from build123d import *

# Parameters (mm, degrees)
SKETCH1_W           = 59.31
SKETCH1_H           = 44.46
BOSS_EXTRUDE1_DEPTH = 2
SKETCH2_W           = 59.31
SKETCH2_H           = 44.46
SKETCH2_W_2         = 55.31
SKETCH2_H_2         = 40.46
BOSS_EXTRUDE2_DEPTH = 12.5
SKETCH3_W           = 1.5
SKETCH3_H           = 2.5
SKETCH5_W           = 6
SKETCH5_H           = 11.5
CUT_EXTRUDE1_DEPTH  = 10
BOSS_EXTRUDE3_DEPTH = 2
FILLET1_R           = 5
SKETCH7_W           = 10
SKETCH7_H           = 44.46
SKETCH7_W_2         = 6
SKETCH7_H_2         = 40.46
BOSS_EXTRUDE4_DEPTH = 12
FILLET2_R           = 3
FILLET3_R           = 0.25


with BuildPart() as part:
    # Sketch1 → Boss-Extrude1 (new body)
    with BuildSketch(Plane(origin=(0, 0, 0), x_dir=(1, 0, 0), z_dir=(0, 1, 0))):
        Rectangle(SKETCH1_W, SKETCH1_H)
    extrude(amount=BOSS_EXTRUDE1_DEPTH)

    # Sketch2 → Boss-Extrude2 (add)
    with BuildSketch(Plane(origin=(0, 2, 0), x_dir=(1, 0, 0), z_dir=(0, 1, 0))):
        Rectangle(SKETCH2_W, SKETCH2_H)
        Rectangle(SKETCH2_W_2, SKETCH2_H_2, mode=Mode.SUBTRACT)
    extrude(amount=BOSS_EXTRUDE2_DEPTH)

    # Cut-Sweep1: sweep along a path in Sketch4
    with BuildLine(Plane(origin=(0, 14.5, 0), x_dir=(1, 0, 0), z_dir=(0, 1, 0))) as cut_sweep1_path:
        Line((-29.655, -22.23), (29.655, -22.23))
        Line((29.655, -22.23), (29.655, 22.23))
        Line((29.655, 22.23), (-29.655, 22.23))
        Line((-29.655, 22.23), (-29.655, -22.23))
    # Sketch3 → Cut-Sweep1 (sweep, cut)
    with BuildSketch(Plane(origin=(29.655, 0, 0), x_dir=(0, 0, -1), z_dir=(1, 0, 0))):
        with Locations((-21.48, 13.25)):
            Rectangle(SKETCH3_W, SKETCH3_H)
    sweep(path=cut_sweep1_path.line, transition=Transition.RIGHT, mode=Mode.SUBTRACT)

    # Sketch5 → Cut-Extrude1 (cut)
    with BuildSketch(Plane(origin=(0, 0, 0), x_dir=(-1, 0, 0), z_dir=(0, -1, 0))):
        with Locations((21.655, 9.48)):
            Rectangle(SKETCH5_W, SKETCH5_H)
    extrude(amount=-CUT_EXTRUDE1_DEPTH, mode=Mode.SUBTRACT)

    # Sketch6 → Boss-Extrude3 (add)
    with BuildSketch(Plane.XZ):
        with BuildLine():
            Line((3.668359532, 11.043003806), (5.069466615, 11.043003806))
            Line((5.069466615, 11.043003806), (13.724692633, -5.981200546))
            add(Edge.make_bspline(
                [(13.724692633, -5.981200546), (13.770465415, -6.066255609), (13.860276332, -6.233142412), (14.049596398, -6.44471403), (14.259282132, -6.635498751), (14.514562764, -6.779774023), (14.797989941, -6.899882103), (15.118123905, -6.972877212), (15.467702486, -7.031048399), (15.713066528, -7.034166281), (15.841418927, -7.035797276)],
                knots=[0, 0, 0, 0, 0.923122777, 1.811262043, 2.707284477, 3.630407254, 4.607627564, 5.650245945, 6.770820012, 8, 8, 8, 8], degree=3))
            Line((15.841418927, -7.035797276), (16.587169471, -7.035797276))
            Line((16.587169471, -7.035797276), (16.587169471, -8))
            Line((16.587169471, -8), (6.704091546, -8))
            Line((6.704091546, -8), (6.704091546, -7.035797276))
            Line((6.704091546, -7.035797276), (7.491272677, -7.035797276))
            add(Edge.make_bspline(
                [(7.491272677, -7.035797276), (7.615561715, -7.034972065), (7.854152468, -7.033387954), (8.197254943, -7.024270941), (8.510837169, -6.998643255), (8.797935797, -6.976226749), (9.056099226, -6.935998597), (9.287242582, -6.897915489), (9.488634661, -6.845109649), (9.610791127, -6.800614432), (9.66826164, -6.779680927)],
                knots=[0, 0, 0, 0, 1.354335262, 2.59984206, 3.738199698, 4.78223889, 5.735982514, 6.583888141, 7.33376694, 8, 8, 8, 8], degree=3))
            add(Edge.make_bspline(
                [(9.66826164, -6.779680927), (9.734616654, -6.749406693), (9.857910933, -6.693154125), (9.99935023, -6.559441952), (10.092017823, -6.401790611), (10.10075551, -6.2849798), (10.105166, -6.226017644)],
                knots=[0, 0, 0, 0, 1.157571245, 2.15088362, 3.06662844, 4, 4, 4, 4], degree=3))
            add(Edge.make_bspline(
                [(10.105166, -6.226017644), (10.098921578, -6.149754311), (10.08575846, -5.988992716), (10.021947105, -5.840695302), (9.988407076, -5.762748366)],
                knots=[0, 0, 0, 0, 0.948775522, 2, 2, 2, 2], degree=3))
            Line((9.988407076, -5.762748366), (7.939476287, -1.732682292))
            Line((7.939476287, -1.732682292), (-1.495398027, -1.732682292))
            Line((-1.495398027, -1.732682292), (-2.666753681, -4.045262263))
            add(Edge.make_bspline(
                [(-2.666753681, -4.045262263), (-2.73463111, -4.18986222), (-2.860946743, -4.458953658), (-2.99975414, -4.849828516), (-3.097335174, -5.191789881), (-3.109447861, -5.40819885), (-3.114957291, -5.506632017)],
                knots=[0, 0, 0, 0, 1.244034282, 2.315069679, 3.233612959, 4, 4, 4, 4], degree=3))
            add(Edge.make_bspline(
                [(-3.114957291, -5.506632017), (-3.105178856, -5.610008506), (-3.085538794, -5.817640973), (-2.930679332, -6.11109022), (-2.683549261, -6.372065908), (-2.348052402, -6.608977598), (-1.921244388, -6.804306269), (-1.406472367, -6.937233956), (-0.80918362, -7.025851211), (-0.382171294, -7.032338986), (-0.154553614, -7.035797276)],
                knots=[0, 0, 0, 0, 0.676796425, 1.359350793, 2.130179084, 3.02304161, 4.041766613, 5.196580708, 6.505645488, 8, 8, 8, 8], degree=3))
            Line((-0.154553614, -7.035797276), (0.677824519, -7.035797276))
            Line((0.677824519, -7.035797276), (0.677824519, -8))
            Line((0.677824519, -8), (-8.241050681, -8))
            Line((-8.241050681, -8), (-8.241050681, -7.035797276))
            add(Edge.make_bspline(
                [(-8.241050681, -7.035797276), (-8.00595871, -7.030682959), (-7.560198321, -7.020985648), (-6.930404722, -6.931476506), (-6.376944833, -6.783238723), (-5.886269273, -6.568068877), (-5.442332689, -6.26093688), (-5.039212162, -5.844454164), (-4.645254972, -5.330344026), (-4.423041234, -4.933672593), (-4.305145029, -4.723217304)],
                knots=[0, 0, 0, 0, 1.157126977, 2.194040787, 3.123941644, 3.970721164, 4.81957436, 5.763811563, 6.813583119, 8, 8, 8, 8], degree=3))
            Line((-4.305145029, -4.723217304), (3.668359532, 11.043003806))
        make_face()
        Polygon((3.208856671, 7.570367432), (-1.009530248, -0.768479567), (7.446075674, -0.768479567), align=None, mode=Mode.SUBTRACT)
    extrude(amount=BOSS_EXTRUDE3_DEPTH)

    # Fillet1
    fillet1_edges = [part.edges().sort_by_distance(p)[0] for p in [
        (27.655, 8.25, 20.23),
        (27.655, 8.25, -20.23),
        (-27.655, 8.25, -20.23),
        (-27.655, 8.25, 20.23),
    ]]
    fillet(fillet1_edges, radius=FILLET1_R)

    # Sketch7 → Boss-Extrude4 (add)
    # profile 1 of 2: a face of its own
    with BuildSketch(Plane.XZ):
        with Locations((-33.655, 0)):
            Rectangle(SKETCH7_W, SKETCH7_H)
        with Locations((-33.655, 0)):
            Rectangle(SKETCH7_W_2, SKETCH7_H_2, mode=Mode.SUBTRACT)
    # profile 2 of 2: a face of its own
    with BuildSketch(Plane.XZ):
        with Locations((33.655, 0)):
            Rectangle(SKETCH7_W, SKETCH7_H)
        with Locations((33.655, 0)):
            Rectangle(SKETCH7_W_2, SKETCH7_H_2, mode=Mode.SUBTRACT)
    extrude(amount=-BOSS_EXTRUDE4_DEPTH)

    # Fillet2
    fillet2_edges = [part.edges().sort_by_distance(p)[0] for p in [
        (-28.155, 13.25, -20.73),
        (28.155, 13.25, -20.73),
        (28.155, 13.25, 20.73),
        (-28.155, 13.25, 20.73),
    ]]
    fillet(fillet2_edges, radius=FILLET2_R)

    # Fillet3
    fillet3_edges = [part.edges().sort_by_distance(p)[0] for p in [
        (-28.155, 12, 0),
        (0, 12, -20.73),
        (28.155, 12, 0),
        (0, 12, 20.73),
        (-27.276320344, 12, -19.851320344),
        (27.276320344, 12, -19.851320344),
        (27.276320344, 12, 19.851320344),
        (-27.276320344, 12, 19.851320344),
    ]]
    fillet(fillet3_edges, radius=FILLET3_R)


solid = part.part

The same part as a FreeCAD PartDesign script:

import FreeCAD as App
import Part
import Sketcher
from FreeCAD import Vector
Q = App.Units.Quantity


def edges_at(feature, points):
    """Names of the edges that pass closest to the given points."""
    edges = feature.Shape.Edges
    near = lambda p: min(range(len(edges)), key=lambda i: edges[i].distToShape(Part.Vertex(*p))[0])
    return sorted({f"Edge{near(p) + 1}" for p in points})


def add_polygon(sketch, points):
    """Adds a closed chain of lines whose ends are joined by coincident constraints."""
    first, n = sketch.GeometryCount, len(points)
    for a, b in zip(points, points[1:] + points[:1]):
        sketch.addGeometry(Part.LineSegment(App.Vector(*a, 0), App.Vector(*b, 0)), False)
    for i in range(n):
        sketch.addConstraint(Sketcher.Constraint("Coincident", first + i, 2, first + (i + 1) % n, 1))

doc = App.newDocument("Part")
body = doc.addObject("PartDesign::Body", "Body")

# Sketch on XZ plane
sketch1 = body.newObject("Sketcher::SketchObject", "Sketch")
sketch1.AttachmentSupport = (doc.getObject("XZ_Plane"), [""])
sketch1.MapMode = "FlatFace"
add_polygon(sketch1, [(-30, -22), (-30, 22), (30, 22), (30, -22)])  # lines 0-3
sketch1.addConstraint(Sketcher.Constraint("Vertical", 0))
sketch1.addConstraint(Sketcher.Constraint("Horizontal", 1))
sketch1.addConstraint(Sketcher.Constraint("Vertical", 2))
sketch1.addConstraint(Sketcher.Constraint("Horizontal", 3))
sketch1.addConstraint(Sketcher.Constraint("Symmetric", 0, 2, 2, 2, -1, 1))
sketch1.addConstraint(Sketcher.Constraint("DistanceX", 1, 1, 1, 2, Q("59.31 mm")))
sketch1.addConstraint(Sketcher.Constraint("DistanceY", 0, 1, 0, 2, Q("44.46 mm")))
pad1 = body.newObject("PartDesign::Pad", "Pad")
pad1.Profile = sketch1
pad1.Length = 2
pad1.Reversed = True

# Sketch on XZ plane
sketch2 = body.newObject("Sketcher::SketchObject", "Sketch001")
sketch2.AttachmentSupport = (doc.getObject("XZ_Plane"), [""])
sketch2.MapMode = "FlatFace"
sketch2.AttachmentOffset = App.Placement(Vector(0, 0, -2), App.Rotation())
add_polygon(sketch2, [(-30, -22), (-30, 22), (30, 22), (30, -22)])  # lines 0-3
add_polygon(sketch2, [(28, 20), (-28, 20), (-28, -20), (28, -20)])  # lines 4-7
sketch2.addConstraint(Sketcher.Constraint("Vertical", 0))
sketch2.addConstraint(Sketcher.Constraint("Horizontal", 1))
sketch2.addConstraint(Sketcher.Constraint("Vertical", 2))
sketch2.addConstraint(Sketcher.Constraint("Horizontal", 3))
sketch2.addConstraint(Sketcher.Constraint("Horizontal", 4))
sketch2.addConstraint(Sketcher.Constraint("Vertical", 5))
sketch2.addConstraint(Sketcher.Constraint("Horizontal", 6))
sketch2.addConstraint(Sketcher.Constraint("Vertical", 7))
sketch2.addConstraint(Sketcher.Constraint("Symmetric", 0, 2, 2, 2, -1, 1))
sketch2.addConstraint(Sketcher.Constraint("Symmetric", 4, 2, 6, 2, -1, 1))
sketch2.addConstraint(Sketcher.Constraint("DistanceX", 0, 2, 4, 2, Q("2 mm")))
sketch2.addConstraint(Sketcher.Constraint("DistanceY", 4, 2, 0, 2, Q("2 mm")))
sketch2.addConstraint(Sketcher.Constraint("DistanceX", 1, 1, 1, 2, Q("59.31 mm")))
sketch2.addConstraint(Sketcher.Constraint("DistanceY", 0, 1, 0, 2, Q("44.46 mm")))
pad2 = body.newObject("PartDesign::Pad", "Pad001")
pad2.Profile = sketch2
pad2.Length = 12.5
pad2.Reversed = True

# Sketch on YZ plane
sketch3 = body.newObject("Sketcher::SketchObject", "Sketch002")
sketch3.AttachmentSupport = (doc.getObject("YZ_Plane"), [""])
sketch3.MapMode = "FlatFace"
sketch3.AttachmentOffset = App.Placement(Vector(0, 0, 29.655), App.Rotation())
add_polygon(sketch3, [(14.5, 22.2), (12, 22.2), (12, 20.7), (14.5, 20.7)])  # lines 0-3
sketch3.addConstraint(Sketcher.Constraint("Horizontal", 0))
sketch3.addConstraint(Sketcher.Constraint("Vertical", 1))
sketch3.addConstraint(Sketcher.Constraint("Horizontal", 2))
sketch3.addConstraint(Sketcher.Constraint("Vertical", 3))
sketch3.addConstraint(Sketcher.Constraint("DistanceX", 0, 2, 0, 1, Q("2.5 mm")))
sketch3.addConstraint(Sketcher.Constraint("DistanceY", 1, 2, 1, 1, Q("1.5 mm")))
sketch3.addConstraint(Sketcher.Constraint("DistanceX", -1, 1, 0, 2, Q("12 mm")))
sketch3.addConstraint(Sketcher.Constraint("DistanceY", -1, 1, 0, 2, Q("22.23 mm")))

# Sketch on XZ plane
sketch4 = body.newObject("Sketcher::SketchObject", "Sketch003")
sketch4.AttachmentSupport = (doc.getObject("XZ_Plane"), [""])
sketch4.MapMode = "FlatFace"
sketch4.AttachmentOffset = App.Placement(Vector(0, 0, -14.5), App.Rotation())
add_polygon(sketch4, [(-30, 22), (30, 22), (30, -22), (-30, -22)])  # lines 0-3
sketch4.addConstraint(Sketcher.Constraint("Horizontal", 0))
sketch4.addConstraint(Sketcher.Constraint("Vertical", 1))
sketch4.addConstraint(Sketcher.Constraint("Horizontal", 2))
sketch4.addConstraint(Sketcher.Constraint("Vertical", 3))
sketch4.addConstraint(Sketcher.Constraint("Symmetric", 0, 2, 2, 2, -1, 1))
sketch4.addConstraint(Sketcher.Constraint("DistanceX", 0, 1, 0, 2, Q("59.31 mm")))
sketch4.addConstraint(Sketcher.Constraint("DistanceY", 1, 2, 1, 1, Q("44.46 mm")))
doc.recompute()

subtractivepipe = body.newObject("PartDesign::SubtractivePipe", "SubtractivePipe")
subtractivepipe.Profile = sketch3
subtractivepipe.Spine = (sketch4, ["Edge1", "Edge2", "Edge3", "Edge4"])
subtractivepipe.Transition = "Right corner"

# Sketch on XZ plane
sketch5 = body.newObject("Sketcher::SketchObject", "Sketch004")
sketch5.AttachmentSupport = (doc.getObject("XZ_Plane"), [""])
sketch5.MapMode = "FlatFace"
add_polygon(sketch5, [(-19, -15), (-19, -4), (-25, -4), (-25, -15)])  # lines 0-3
sketch5.addConstraint(Sketcher.Constraint("Vertical", 0))
sketch5.addConstraint(Sketcher.Constraint("Horizontal", 1))
sketch5.addConstraint(Sketcher.Constraint("Vertical", 2))
sketch5.addConstraint(Sketcher.Constraint("Horizontal", 3))
sketch5.addConstraint(Sketcher.Constraint("DistanceX", 1, 2, 1, 1, Q("6 mm")))
sketch5.addConstraint(Sketcher.Constraint("DistanceY", 0, 1, 0, 2, Q("11.5 mm")))
sketch5.addConstraint(Sketcher.Constraint("DistanceY", 0, 2, -1, 1, Q("3.73 mm")))
sketch5.addConstraint(Sketcher.Constraint("DistanceX", 0, 2, -1, 1, Q("18.655 mm")))
pocket1 = body.newObject("PartDesign::Pocket", "Pocket")
pocket1.Profile = sketch5
pocket1.Length = 10

# Sketch on XZ plane
sketch6 = body.newObject("Sketcher::SketchObject", "Sketch005")
sketch6.AttachmentSupport = (doc.getObject("XZ_Plane"), [""])
sketch6.MapMode = "FlatFace"
sketch6.addGeometry(Part.LineSegment(Vector(5.069467, 11.043004, 0), Vector(3.66836, 11.043004, 0)), False)  # 0
sketch6.addGeometry(Part.LineSegment(Vector(3.66836, 11.043004, 0), Vector(-4.305145, -4.723217, 0)), False)  # 1
sketch6.addGeometry(Part.BSplineCurve([Vector(-8.241051, -7.035797, 0), Vector(-8.005959, -7.030683, 0), Vector(-7.560198, -7.020986, 0), Vector(-6.930405, -6.931477, 0), Vector(-6.376945, -6.783239, 0), Vector(-5.886269, -6.568069, 0), Vector(-5.442333, -6.260937, 0), Vector(-5.039212, -5.844454, 0), Vector(-4.645255, -5.330344, 0), Vector(-4.423041, -4.933673, 0), Vector(-4.305145, -4.723217, 0)], [4, 1, 1, 1, 1, 1, 1, 1, 4], [0, 1.157126977, 2.194040787, 3.123941644, 3.970721164, 4.81957436, 5.763811563, 6.813583119, 8], False, 3, [1, 1, 1, 1, 1, 1, 1, 1, 1, 1, 1], False), False)  # 2
sketch6.addGeometry(Part.LineSegment(Vector(-8.241051, -7.035797, 0), Vector(-8.241051, -8, 0)), False)  # 3
sketch6.addGeometry(Part.LineSegment(Vector(-8.241051, -8, 0), Vector(0.677825, -8, 0)), False)  # 4
sketch6.addGeometry(Part.LineSegment(Vector(0.677825, -8, 0), Vector(0.677825, -7.035797, 0)), False)  # 5
sketch6.addGeometry(Part.LineSegment(Vector(0.677825, -7.035797, 0), Vector(-0.154554, -7.035797, 0)), False)  # 6
sketch6.addGeometry(Part.BSplineCurve([Vector(-3.114957, -5.506632, 0), Vector(-3.105179, -5.610009, 0), Vector(-3.085539, -5.817641, 0), Vector(-2.930679, -6.11109, 0), Vector(-2.683549, -6.372066, 0), Vector(-2.348052, -6.608978, 0), Vector(-1.921244, -6.804306, 0), Vector(-1.406472, -6.937234, 0), Vector(-0.809184, -7.025851, 0), Vector(-0.382171, -7.032339, 0), Vector(-0.154554, -7.035797, 0)], [4, 1, 1, 1, 1, 1, 1, 1, 4], [0, 0.676796425, 1.359350793, 2.130179084, 3.02304161, 4.041766613, 5.196580708, 6.505645488, 8], False, 3, [1, 1, 1, 1, 1, 1, 1, 1, 1, 1, 1], False), False)  # 7
sketch6.addGeometry(Part.BSplineCurve([Vector(-2.666754, -4.045262, 0), Vector(-2.734631, -4.189862, 0), Vector(-2.860947, -4.458954, 0), Vector(-2.999754, -4.849829, 0), Vector(-3.097335, -5.19179, 0), Vector(-3.109448, -5.408199, 0), Vector(-3.114957, -5.506632, 0)], [4, 1, 1, 1, 4], [0, 1.244034282, 2.315069679, 3.233612959, 4], False, 3, [1, 1, 1, 1, 1, 1, 1], False), False)  # 8
sketch6.addGeometry(Part.LineSegment(Vector(-2.666754, -4.045262, 0), Vector(-1.495398, -1.732682, 0)), False)  # 9
sketch6.addGeometry(Part.LineSegment(Vector(-1.495398, -1.732682, 0), Vector(7.939476, -1.732682, 0)), False)  # 10
sketch6.addGeometry(Part.LineSegment(Vector(7.939476, -1.732682, 0), Vector(9.988407, -5.762748, 0)), False)  # 11
sketch6.addGeometry(Part.BSplineCurve([Vector(10.105166, -6.226018, 0), Vector(10.098922, -6.149754, 0), Vector(10.085758, -5.988993, 0), Vector(10.021947, -5.840695, 0), Vector(9.988407, -5.762748, 0)], [4, 1, 4], [0, 0.948775522, 2], False, 3, [1, 1, 1, 1, 1], False), False)  # 12
sketch6.addGeometry(Part.BSplineCurve([Vector(9.668262, -6.779681, 0), Vector(9.734617, -6.749407, 0), Vector(9.857911, -6.693154, 0), Vector(9.99935, -6.559442, 0), Vector(10.092018, -6.401791, 0), Vector(10.100756, -6.28498, 0), Vector(10.105166, -6.226018, 0)], [4, 1, 1, 1, 4], [0, 1.157571245, 2.15088362, 3.06662844, 4], False, 3, [1, 1, 1, 1, 1, 1, 1], False), False)  # 13
sketch6.addGeometry(Part.BSplineCurve([Vector(7.491273, -7.035797, 0), Vector(7.615562, -7.034972, 0), Vector(7.854152, -7.033388, 0), Vector(8.197255, -7.024271, 0), Vector(8.510837, -6.998643, 0), Vector(8.797936, -6.976227, 0), Vector(9.056099, -6.935999, 0), Vector(9.287243, -6.897915, 0), Vector(9.488635, -6.84511, 0), Vector(9.610791, -6.800614, 0), Vector(9.668262, -6.779681, 0)], [4, 1, 1, 1, 1, 1, 1, 1, 4], [0, 1.354335262, 2.59984206, 3.738199698, 4.78223889, 5.735982514, 6.583888141, 7.33376694, 8], False, 3, [1, 1, 1, 1, 1, 1, 1, 1, 1, 1, 1], False), False)  # 14
sketch6.addGeometry(Part.LineSegment(Vector(7.491273, -7.035797, 0), Vector(6.704092, -7.035797, 0)), False)  # 15
sketch6.addGeometry(Part.LineSegment(Vector(6.704092, -7.035797, 0), Vector(6.704092, -8, 0)), False)  # 16
sketch6.addGeometry(Part.LineSegment(Vector(6.704092, -8, 0), Vector(16.587169, -8, 0)), False)  # 17
sketch6.addGeometry(Part.LineSegment(Vector(16.587169, -8, 0), Vector(16.587169, -7.035797, 0)), False)  # 18
sketch6.addGeometry(Part.LineSegment(Vector(16.587169, -7.035797, 0), Vector(15.841419, -7.035797, 0)), False)  # 19
sketch6.addGeometry(Part.BSplineCurve([Vector(13.724693, -5.981201, 0), Vector(13.770465, -6.066256, 0), Vector(13.860276, -6.233142, 0), Vector(14.049596, -6.444714, 0), Vector(14.259282, -6.635499, 0), Vector(14.514563, -6.779774, 0), Vector(14.79799, -6.899882, 0), Vector(15.118124, -6.972877, 0), Vector(15.467702, -7.031048, 0), Vector(15.713067, -7.034166, 0), Vector(15.841419, -7.035797, 0)], [4, 1, 1, 1, 1, 1, 1, 1, 4], [0, 0.923122777, 1.811262043, 2.707284477, 3.630407254, 4.607627564, 5.650245945, 6.770820012, 8], False, 3, [1, 1, 1, 1, 1, 1, 1, 1, 1, 1, 1], False), False)  # 20
sketch6.addGeometry(Part.LineSegment(Vector(13.724693, -5.981201, 0), Vector(5.069467, 11.043004, 0)), False)  # 21
add_polygon(sketch6, [(3.208857, 7.570367), (7.446076, -0.76848), (-1.00953, -0.76848)])  # lines 22-24
sketch6.addConstraint(Sketcher.Constraint("Block", 2))
sketch6.addConstraint(Sketcher.Constraint("Block", 7))
sketch6.addConstraint(Sketcher.Constraint("Block", 8))
sketch6.addConstraint(Sketcher.Constraint("Block", 12))
sketch6.addConstraint(Sketcher.Constraint("Block", 13))
sketch6.addConstraint(Sketcher.Constraint("Block", 14))
sketch6.addConstraint(Sketcher.Constraint("Block", 20))
sketch6.addConstraint(Sketcher.Constraint("Coincident", 0, 2, 1, 1))
sketch6.addConstraint(Sketcher.Constraint("Coincident", 1, 2, 2, 2))
sketch6.addConstraint(Sketcher.Constraint("Coincident", 2, 1, 3, 1))
sketch6.addConstraint(Sketcher.Constraint("Coincident", 3, 2, 4, 1))
sketch6.addConstraint(Sketcher.Constraint("Coincident", 4, 2, 5, 1))
sketch6.addConstraint(Sketcher.Constraint("Coincident", 5, 2, 6, 1))
sketch6.addConstraint(Sketcher.Constraint("Coincident", 6, 2, 7, 2))
sketch6.addConstraint(Sketcher.Constraint("Coincident", 8, 1, 9, 1))
sketch6.addConstraint(Sketcher.Constraint("Coincident", 9, 2, 10, 1))
sketch6.addConstraint(Sketcher.Constraint("Coincident", 10, 2, 11, 1))
sketch6.addConstraint(Sketcher.Constraint("Coincident", 11, 2, 12, 2))
sketch6.addConstraint(Sketcher.Constraint("Coincident", 14, 1, 15, 1))
sketch6.addConstraint(Sketcher.Constraint("Coincident", 15, 2, 16, 1))
sketch6.addConstraint(Sketcher.Constraint("Coincident", 16, 2, 17, 1))
sketch6.addConstraint(Sketcher.Constraint("Coincident", 17, 2, 18, 1))
sketch6.addConstraint(Sketcher.Constraint("Coincident", 18, 2, 19, 1))
sketch6.addConstraint(Sketcher.Constraint("Coincident", 19, 2, 20, 2))
sketch6.addConstraint(Sketcher.Constraint("Coincident", 20, 1, 21, 1))
sketch6.addConstraint(Sketcher.Constraint("Coincident", 21, 2, 0, 1))
sketch6.addConstraint(Sketcher.Constraint("Horizontal", 0))
sketch6.addConstraint(Sketcher.Constraint("Vertical", 3))
sketch6.addConstraint(Sketcher.Constraint("Horizontal", 4))
sketch6.addConstraint(Sketcher.Constraint("Vertical", 5))
sketch6.addConstraint(Sketcher.Constraint("Horizontal", 6))
sketch6.addConstraint(Sketcher.Constraint("Horizontal", 10))
sketch6.addConstraint(Sketcher.Constraint("Horizontal", 15))
sketch6.addConstraint(Sketcher.Constraint("Vertical", 16))
sketch6.addConstraint(Sketcher.Constraint("Horizontal", 17))
sketch6.addConstraint(Sketcher.Constraint("Vertical", 18))
sketch6.addConstraint(Sketcher.Constraint("Horizontal", 19))
sketch6.addConstraint(Sketcher.Constraint("Horizontal", 23))
sketch6.addConstraint(Sketcher.Constraint("Horizontal", 4, 2, 16, 2))
sketch6.addConstraint(Sketcher.Constraint("DistanceY", 3, 2, -1, 1, Q("8 mm")))
sketch6.addConstraint(Sketcher.Constraint("DistanceX", 6, 2, 6, 1, Q("0.832378 mm")))
sketch6.addConstraint(Sketcher.Constraint("DistanceX", 15, 2, 15, 1, Q("0.787181 mm")))
sketch6.addConstraint(Sketcher.Constraint("DistanceX", 19, 2, 19, 1, Q("0.745751 mm")))
sketch6.addConstraint(Sketcher.Constraint("DistanceX", 9, 2, -1, 1, Q("1.495398 mm")))
sketch6.addConstraint(Sketcher.Constraint("DistanceY", 5, 2, 0, 2, Q("18.078801 mm")))
sketch6.addConstraint(Sketcher.Constraint("DistanceX", 22, 2, 10, 2, Q("0.493401 mm")))
sketch6.addConstraint(Sketcher.Constraint("Distance", 1, Q("17.667781 mm")))
sketch6.addConstraint(Sketcher.Constraint("Distance", 22, Q("9.35363 mm")))
sketch6.addConstraint(Sketcher.Constraint("DistanceX", 0, 2, 0, 1, Q("1.401107 mm")))
sketch6.addConstraint(Sketcher.Constraint("DistanceX", 10, 1, 10, 2, Q("9.434874 mm")))
sketch6.addConstraint(Sketcher.Constraint("DistanceX", 23, 2, 23, 1, Q("8.455606 mm")))
sketch6.addConstraint(Sketcher.Constraint("DistanceY", 22, 2, -1, 1, Q("0.76848 mm")))
sketch6.addConstraint(Sketcher.Constraint("DistanceX", 24, 2, 21, 2, Q("1.86061 mm")))
sketch6.addConstraint(Sketcher.Constraint("DistanceY", 9, 2, 24, 2, Q("9.30305 mm")))
pad3 = body.newObject("PartDesign::Pad", "Pad002")
pad3.Profile = sketch6
pad3.Length = 2
doc.recompute()

fillet = body.newObject("PartDesign::Fillet", "Fillet")
fillet.Base = (pad3, edges_at(pad3, [
    (27.655, 8.25, 20.23),
    (27.655, 8.25, -20.23),
    (-27.655, 8.25, -20.23),
    (-27.655, 8.25, 20.23),
]))
fillet.Radius = 5

# Sketch on XZ plane
sketch7 = body.newObject("Sketcher::SketchObject", "Sketch006")
sketch7.AttachmentSupport = (doc.getObject("XZ_Plane"), [""])
sketch7.MapMode = "FlatFace"
add_polygon(sketch7, [(-39, 22), (-39, -22), (-29, -22), (-29, 22)])  # lines 0-3
add_polygon(sketch7, [(-31, -20), (-37, -20), (-37, 20), (-31, 20)])  # lines 4-7
add_polygon(sketch7, [(29, 22), (29, -22), (39, -22), (39, 22)])  # lines 8-11
add_polygon(sketch7, [(37, -20), (31, -20), (31, 20), (37, 20)])  # lines 12-15
sketch7.addConstraint(Sketcher.Constraint("Vertical", 0))
sketch7.addConstraint(Sketcher.Constraint("Horizontal", 1))
sketch7.addConstraint(Sketcher.Constraint("Vertical", 2))
sketch7.addConstraint(Sketcher.Constraint("Horizontal", 3))
sketch7.addConstraint(Sketcher.Constraint("Horizontal", 4))
sketch7.addConstraint(Sketcher.Constraint("Vertical", 5))
sketch7.addConstraint(Sketcher.Constraint("Horizontal", 6))
sketch7.addConstraint(Sketcher.Constraint("Vertical", 7))
sketch7.addConstraint(Sketcher.Constraint("Vertical", 8))
sketch7.addConstraint(Sketcher.Constraint("Horizontal", 9))
sketch7.addConstraint(Sketcher.Constraint("Vertical", 10))
sketch7.addConstraint(Sketcher.Constraint("Horizontal", 11))
sketch7.addConstraint(Sketcher.Constraint("Horizontal", 12))
sketch7.addConstraint(Sketcher.Constraint("Vertical", 13))
sketch7.addConstraint(Sketcher.Constraint("Horizontal", 14))
sketch7.addConstraint(Sketcher.Constraint("Vertical", 15))
sketch7.addConstraint(Sketcher.Constraint("Symmetric", 2, 2, 8, 2, -1, 1))
sketch7.addConstraint(Sketcher.Constraint("Symmetric", 0, 2, 10, 2, -1, 1))
sketch7.addConstraint(Sketcher.Constraint("Symmetric", 6, 2, 12, 2, -1, 1))
sketch7.addConstraint(Sketcher.Constraint("Symmetric", 4, 2, 14, 2, -1, 1))
sketch7.addConstraint(Sketcher.Constraint("Horizontal", 1, 2, 8, 2))
sketch7.addConstraint(Sketcher.Constraint("Horizontal", 7, 2, 12, 2))
sketch7.addConstraint(Sketcher.Constraint("DistanceX", 1, 1, 1, 2, Q("10 mm")))
sketch7.addConstraint(Sketcher.Constraint("DistanceX", 4, 2, 4, 1, Q("6 mm")))
sketch7.addConstraint(Sketcher.Constraint("DistanceX", 0, 2, 4, 2, Q("2 mm")))
sketch7.addConstraint(Sketcher.Constraint("DistanceY", 0, 2, 4, 2, Q("2 mm")))
sketch7.addConstraint(Sketcher.Constraint("DistanceY", 0, 2, 0, 1, Q("44.46 mm")))
sketch7.addConstraint(Sketcher.Constraint("DistanceX", 1, 2, 8, 2, Q("57.31 mm")))
pad4 = body.newObject("PartDesign::Pad", "Pad003")
pad4.Profile = sketch7
pad4.Length = 12
pad4.Reversed = True
doc.recompute()

fillet2 = body.newObject("PartDesign::Fillet", "Fillet001")
fillet2.Base = (pad4, edges_at(pad4, [
    (-28.155, 13.25, -20.73),
    (28.155, 13.25, -20.73),
    (28.155, 13.25, 20.73),
    (-28.155, 13.25, 20.73),
]))
fillet2.Radius = 3
doc.recompute()

fillet3 = body.newObject("PartDesign::Fillet", "Fillet002")
fillet3.Base = (fillet2, edges_at(fillet2, [
    (-28.155, 12, 0),
    (0, 12, -20.73),
    (28.155, 12, 0),
    (0, 12, 20.73),
    (-27.276, 12, -19.851),
    (27.276, 12, -19.851),
    (27.276, 12, 19.851),
    (-27.276, 12, 19.851),
]))
fillet3.Radius = 0.25

doc.recompute()
